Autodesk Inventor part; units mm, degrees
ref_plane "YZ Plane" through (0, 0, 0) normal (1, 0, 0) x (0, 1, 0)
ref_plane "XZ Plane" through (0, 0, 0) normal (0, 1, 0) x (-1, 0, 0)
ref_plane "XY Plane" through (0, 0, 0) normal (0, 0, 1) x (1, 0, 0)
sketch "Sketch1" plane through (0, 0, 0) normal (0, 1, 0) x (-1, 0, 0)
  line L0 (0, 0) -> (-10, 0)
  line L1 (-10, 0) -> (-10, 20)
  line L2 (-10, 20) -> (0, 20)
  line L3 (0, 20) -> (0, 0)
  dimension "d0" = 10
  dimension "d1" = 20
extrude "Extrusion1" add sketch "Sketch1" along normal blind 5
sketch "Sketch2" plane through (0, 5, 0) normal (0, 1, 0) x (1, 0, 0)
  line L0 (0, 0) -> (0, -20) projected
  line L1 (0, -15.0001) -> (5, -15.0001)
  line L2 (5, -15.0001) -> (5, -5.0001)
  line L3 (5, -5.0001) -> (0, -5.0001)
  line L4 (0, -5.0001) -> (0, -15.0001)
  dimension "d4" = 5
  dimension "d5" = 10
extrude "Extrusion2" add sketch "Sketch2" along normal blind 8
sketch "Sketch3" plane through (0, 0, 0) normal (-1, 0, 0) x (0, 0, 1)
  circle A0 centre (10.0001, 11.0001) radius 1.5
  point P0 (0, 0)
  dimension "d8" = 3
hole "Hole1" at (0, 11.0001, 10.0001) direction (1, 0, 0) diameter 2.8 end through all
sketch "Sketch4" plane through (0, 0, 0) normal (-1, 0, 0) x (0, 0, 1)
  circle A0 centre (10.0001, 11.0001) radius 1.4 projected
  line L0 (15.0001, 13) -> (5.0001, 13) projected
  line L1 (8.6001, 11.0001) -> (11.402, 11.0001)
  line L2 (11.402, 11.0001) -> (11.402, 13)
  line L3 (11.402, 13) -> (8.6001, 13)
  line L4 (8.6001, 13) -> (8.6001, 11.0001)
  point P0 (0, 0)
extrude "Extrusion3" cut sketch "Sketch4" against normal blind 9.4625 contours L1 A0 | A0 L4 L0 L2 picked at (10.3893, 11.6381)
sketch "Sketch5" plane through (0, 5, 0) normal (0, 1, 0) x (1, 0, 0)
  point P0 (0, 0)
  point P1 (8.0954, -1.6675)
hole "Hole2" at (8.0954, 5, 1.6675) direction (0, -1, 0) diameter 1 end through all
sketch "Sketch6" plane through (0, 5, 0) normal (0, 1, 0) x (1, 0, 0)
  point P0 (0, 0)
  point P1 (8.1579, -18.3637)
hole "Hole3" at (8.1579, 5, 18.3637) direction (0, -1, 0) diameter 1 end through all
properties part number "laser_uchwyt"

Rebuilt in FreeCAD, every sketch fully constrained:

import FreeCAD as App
import Part
import Sketcher
from FreeCAD import Vector
Q = App.Units.Quantity


def add_polygon(sketch, points):
    """Adds a closed chain of lines whose ends are joined by coincident constraints."""
    first, n = sketch.GeometryCount, len(points)
    for a, b in zip(points, points[1:] + points[:1]):
        sketch.addGeometry(Part.LineSegment(App.Vector(*a, 0), App.Vector(*b, 0)), False)
    for i in range(n):
        sketch.addConstraint(Sketcher.Constraint("Coincident", first + i, 2, first + (i + 1) % n, 1))

doc = App.newDocument("Part")
params = doc.addObject("Spreadsheet::Sheet", "Params")
for row, (alias, value) in enumerate([
    ("sketch1_width", "10 mm"),
    ("sketch1_height", "20 mm"),
    ("pad1_length", "5 mm"),
    ("sketch2_width", "5 mm"),
    ("sketch2_height", "10 mm"),
    ("pad2_length", "8 mm"),
    ("sketch3_diameter", "2.8 mm"),
    ("hole_diameter", "2.8 mm"),
    ("sketch4_width", "2 mm"),
    ("pocket1_length", "9.4625 mm"),
    ("sketch5_diameter", "1 mm"),
    ("hole2_diameter", "1 mm"),
    ("sketch6_diameter", "1 mm"),
    ("hole3_diameter", "1 mm"),
], start=1):
    params.set(f"A{row}", alias)
    params.set(f"B{row}", "=" + value)
    params.setAlias(f"B{row}", alias)

body = doc.addObject("PartDesign::Body", "Body")

sketch1 = doc.addObject("Sketcher::SketchObject", "Sketch")
body.addObject(sketch1)
sketch1.AttachmentSupport = (doc.XZ_Plane, [""])
sketch1.MapMode = "FlatFace"
add_polygon(sketch1, [(10, 0), (0, 0), (0, 20), (10, 20)])
sketch1.addConstraint([
    Sketcher.Constraint("Horizontal", 0),
    Sketcher.Constraint("Vertical", 1),
    Sketcher.Constraint("Horizontal", 2),
    Sketcher.Constraint("Vertical", 3),
    Sketcher.Constraint("Coincident", 0, 2, -1, 1),
    Sketcher.Constraint("DistanceX", 0, 2, 0, 1, Q("10 mm")),
    Sketcher.Constraint("DistanceY", 1, 1, 1, 2, Q("20 mm")),
])
sketch1.setExpression("Constraints[9]", "Params.sketch1_width")
sketch1.setExpression("Constraints[10]", "Params.sketch1_height")
pad1 = doc.addObject("PartDesign::Pad", "Pad")
body.addObject(pad1)
pad1.Profile = sketch1
pad1.setExpression("Length", "Params.pad1_length")
pad1.Reversed = True

sketch2 = doc.addObject("Sketcher::SketchObject", "Sketch001")
body.addObject(sketch2)
sketch2.AttachmentSupport = (doc.XZ_Plane, [""])
sketch2.MapMode = "FlatFace"
sketch2.AttachmentOffset = App.Placement(Vector(0, 0, -5), App.Rotation())
add_polygon(sketch2, [(5, 5.0001), (0, 5.0001), (0, 15.0001), (5, 15.0001)])
sketch2.addConstraint([
    Sketcher.Constraint("Horizontal", 0),
    Sketcher.Constraint("Vertical", 1),
    Sketcher.Constraint("Horizontal", 2),
    Sketcher.Constraint("Vertical", 3),
    Sketcher.Constraint("PointOnObject", 0, 2, -2),
    Sketcher.Constraint("DistanceX", 0, 2, 0, 1, Q("5 mm")),
    Sketcher.Constraint("DistanceY", 1, 1, 1, 2, Q("10 mm")),
    Sketcher.Constraint("DistanceY", -1, 1, 0, 2, Q("5 mm")),
])
sketch2.setExpression("Constraints[9]", "Params.sketch2_width")
sketch2.setExpression("Constraints[10]", "Params.sketch2_height")
pad2 = doc.addObject("PartDesign::Pad", "Pad001")
body.addObject(pad2)
pad2.Profile = sketch2
pad2.setExpression("Length", "Params.pad2_length")
pad2.Reversed = True

sketch3 = doc.addObject("Sketcher::SketchObject", "Sketch002")
body.addObject(sketch3)
sketch3.AttachmentSupport = (doc.YZ_Plane, [""])
sketch3.MapMode = "FlatFace"
sketch3.addGeometry(Part.Circle(Vector(11.0001, 10.0001, 0), Vector(0, 0, 1), 1.4), False)
sketch3.addConstraint([
    Sketcher.Constraint("Diameter", 0, Q("2.8 mm")),
    Sketcher.Constraint("DistanceX", -1, 1, 0, 3, Q("11 mm")),
    Sketcher.Constraint("DistanceY", -1, 1, 0, 3, Q("10 mm")),
])
sketch3.setExpression("Constraints[0]", "Params.sketch3_diameter")
doc.recompute()
hole = doc.addObject("PartDesign::Hole", "Hole")
body.addObject(hole)
hole.Profile = sketch3
hole.ThreadType = "None"
hole.setExpression("Diameter", "Params.hole_diameter")
hole.DepthType = "ThroughAll"
hole.Reversed = True

sketch4 = doc.addObject("Sketcher::SketchObject", "Sketch003")
body.addObject(sketch4)
sketch4.AttachmentSupport = (doc.YZ_Plane, [""])
sketch4.MapMode = "FlatFace"
add_polygon(sketch4, [(11.0001, 8.6001), (11.0001, 11.402), (13, 11.402), (13, 8.6001)])
sketch4.addConstraint([
    Sketcher.Constraint("Vertical", 0),
    Sketcher.Constraint("Horizontal", 1),
    Sketcher.Constraint("Vertical", 2),
    Sketcher.Constraint("Horizontal", 3),
    Sketcher.Constraint("DistanceX", 1, 1, 1, 2, Q("2 mm")),
    Sketcher.Constraint("DistanceX", -1, 1, 0, 2, Q("11 mm")),
    Sketcher.Constraint("DistanceY", -1, 1, 2, 2, Q("8.6 mm")),
    Sketcher.Constraint("DistanceY", 0, 1, 0, 2, Q("2.802 mm")),
])
sketch4.setExpression("Constraints[8]", "Params.sketch4_width")
pocket1 = doc.addObject("PartDesign::Pocket", "Pocket")
body.addObject(pocket1)
pocket1.Profile = sketch4
pocket1.setExpression("Length", "Params.pocket1_length")
pocket1.Reversed = True

sketch5 = doc.addObject("Sketcher::SketchObject", "Sketch004")
body.addObject(sketch5)
sketch5.AttachmentSupport = (doc.XZ_Plane, [""])
sketch5.MapMode = "FlatFace"
sketch5.AttachmentOffset = App.Placement(Vector(0, 0, -5), App.Rotation())
sketch5.addGeometry(Part.Circle(Vector(8.0954, 1.6675, 0), Vector(0, 0, 1), 0.5), False)
sketch5.addConstraint([
    Sketcher.Constraint("Diameter", 0, Q("1 mm")),
    Sketcher.Constraint("DistanceX", -1, 1, 0, 3, Q("8.0954 mm")),
    Sketcher.Constraint("DistanceY", -1, 1, 0, 3, Q("1.6675 mm")),
])
sketch5.setExpression("Constraints[0]", "Params.sketch5_diameter")
doc.recompute()
hole2 = doc.addObject("PartDesign::Hole", "Hole001")
body.addObject(hole2)
hole2.Profile = sketch5
hole2.ThreadType = "None"
hole2.setExpression("Diameter", "Params.hole2_diameter")
hole2.DepthType = "ThroughAll"
hole2.Reversed = True

sketch6 = doc.addObject("Sketcher::SketchObject", "Sketch005")
body.addObject(sketch6)
sketch6.AttachmentSupport = (doc.XZ_Plane, [""])
sketch6.MapMode = "FlatFace"
sketch6.AttachmentOffset = App.Placement(Vector(0, 0, -5), App.Rotation())
sketch6.addGeometry(Part.Circle(Vector(8.1579, 18.3637, 0), Vector(0, 0, 1), 0.5), False)
sketch6.addConstraint([
    Sketcher.Constraint("Diameter", 0, Q("1 mm")),
    Sketcher.Constraint("DistanceX", -1, 1, 0, 3, Q("8.158 mm")),
    Sketcher.Constraint("DistanceY", -1, 1, 0, 3, Q("18.3637 mm")),
])
sketch6.setExpression("Constraints[0]", "Params.sketch6_diameter")
doc.recompute()
hole3 = doc.addObject("PartDesign::Hole", "Hole002")
body.addObject(hole3)
hole3.Profile = sketch6
hole3.ThreadType = "None"
hole3.setExpression("Diameter", "Params.hole3_diameter")
hole3.DepthType = "ThroughAll"
hole3.Reversed = True

doc.recompute()
